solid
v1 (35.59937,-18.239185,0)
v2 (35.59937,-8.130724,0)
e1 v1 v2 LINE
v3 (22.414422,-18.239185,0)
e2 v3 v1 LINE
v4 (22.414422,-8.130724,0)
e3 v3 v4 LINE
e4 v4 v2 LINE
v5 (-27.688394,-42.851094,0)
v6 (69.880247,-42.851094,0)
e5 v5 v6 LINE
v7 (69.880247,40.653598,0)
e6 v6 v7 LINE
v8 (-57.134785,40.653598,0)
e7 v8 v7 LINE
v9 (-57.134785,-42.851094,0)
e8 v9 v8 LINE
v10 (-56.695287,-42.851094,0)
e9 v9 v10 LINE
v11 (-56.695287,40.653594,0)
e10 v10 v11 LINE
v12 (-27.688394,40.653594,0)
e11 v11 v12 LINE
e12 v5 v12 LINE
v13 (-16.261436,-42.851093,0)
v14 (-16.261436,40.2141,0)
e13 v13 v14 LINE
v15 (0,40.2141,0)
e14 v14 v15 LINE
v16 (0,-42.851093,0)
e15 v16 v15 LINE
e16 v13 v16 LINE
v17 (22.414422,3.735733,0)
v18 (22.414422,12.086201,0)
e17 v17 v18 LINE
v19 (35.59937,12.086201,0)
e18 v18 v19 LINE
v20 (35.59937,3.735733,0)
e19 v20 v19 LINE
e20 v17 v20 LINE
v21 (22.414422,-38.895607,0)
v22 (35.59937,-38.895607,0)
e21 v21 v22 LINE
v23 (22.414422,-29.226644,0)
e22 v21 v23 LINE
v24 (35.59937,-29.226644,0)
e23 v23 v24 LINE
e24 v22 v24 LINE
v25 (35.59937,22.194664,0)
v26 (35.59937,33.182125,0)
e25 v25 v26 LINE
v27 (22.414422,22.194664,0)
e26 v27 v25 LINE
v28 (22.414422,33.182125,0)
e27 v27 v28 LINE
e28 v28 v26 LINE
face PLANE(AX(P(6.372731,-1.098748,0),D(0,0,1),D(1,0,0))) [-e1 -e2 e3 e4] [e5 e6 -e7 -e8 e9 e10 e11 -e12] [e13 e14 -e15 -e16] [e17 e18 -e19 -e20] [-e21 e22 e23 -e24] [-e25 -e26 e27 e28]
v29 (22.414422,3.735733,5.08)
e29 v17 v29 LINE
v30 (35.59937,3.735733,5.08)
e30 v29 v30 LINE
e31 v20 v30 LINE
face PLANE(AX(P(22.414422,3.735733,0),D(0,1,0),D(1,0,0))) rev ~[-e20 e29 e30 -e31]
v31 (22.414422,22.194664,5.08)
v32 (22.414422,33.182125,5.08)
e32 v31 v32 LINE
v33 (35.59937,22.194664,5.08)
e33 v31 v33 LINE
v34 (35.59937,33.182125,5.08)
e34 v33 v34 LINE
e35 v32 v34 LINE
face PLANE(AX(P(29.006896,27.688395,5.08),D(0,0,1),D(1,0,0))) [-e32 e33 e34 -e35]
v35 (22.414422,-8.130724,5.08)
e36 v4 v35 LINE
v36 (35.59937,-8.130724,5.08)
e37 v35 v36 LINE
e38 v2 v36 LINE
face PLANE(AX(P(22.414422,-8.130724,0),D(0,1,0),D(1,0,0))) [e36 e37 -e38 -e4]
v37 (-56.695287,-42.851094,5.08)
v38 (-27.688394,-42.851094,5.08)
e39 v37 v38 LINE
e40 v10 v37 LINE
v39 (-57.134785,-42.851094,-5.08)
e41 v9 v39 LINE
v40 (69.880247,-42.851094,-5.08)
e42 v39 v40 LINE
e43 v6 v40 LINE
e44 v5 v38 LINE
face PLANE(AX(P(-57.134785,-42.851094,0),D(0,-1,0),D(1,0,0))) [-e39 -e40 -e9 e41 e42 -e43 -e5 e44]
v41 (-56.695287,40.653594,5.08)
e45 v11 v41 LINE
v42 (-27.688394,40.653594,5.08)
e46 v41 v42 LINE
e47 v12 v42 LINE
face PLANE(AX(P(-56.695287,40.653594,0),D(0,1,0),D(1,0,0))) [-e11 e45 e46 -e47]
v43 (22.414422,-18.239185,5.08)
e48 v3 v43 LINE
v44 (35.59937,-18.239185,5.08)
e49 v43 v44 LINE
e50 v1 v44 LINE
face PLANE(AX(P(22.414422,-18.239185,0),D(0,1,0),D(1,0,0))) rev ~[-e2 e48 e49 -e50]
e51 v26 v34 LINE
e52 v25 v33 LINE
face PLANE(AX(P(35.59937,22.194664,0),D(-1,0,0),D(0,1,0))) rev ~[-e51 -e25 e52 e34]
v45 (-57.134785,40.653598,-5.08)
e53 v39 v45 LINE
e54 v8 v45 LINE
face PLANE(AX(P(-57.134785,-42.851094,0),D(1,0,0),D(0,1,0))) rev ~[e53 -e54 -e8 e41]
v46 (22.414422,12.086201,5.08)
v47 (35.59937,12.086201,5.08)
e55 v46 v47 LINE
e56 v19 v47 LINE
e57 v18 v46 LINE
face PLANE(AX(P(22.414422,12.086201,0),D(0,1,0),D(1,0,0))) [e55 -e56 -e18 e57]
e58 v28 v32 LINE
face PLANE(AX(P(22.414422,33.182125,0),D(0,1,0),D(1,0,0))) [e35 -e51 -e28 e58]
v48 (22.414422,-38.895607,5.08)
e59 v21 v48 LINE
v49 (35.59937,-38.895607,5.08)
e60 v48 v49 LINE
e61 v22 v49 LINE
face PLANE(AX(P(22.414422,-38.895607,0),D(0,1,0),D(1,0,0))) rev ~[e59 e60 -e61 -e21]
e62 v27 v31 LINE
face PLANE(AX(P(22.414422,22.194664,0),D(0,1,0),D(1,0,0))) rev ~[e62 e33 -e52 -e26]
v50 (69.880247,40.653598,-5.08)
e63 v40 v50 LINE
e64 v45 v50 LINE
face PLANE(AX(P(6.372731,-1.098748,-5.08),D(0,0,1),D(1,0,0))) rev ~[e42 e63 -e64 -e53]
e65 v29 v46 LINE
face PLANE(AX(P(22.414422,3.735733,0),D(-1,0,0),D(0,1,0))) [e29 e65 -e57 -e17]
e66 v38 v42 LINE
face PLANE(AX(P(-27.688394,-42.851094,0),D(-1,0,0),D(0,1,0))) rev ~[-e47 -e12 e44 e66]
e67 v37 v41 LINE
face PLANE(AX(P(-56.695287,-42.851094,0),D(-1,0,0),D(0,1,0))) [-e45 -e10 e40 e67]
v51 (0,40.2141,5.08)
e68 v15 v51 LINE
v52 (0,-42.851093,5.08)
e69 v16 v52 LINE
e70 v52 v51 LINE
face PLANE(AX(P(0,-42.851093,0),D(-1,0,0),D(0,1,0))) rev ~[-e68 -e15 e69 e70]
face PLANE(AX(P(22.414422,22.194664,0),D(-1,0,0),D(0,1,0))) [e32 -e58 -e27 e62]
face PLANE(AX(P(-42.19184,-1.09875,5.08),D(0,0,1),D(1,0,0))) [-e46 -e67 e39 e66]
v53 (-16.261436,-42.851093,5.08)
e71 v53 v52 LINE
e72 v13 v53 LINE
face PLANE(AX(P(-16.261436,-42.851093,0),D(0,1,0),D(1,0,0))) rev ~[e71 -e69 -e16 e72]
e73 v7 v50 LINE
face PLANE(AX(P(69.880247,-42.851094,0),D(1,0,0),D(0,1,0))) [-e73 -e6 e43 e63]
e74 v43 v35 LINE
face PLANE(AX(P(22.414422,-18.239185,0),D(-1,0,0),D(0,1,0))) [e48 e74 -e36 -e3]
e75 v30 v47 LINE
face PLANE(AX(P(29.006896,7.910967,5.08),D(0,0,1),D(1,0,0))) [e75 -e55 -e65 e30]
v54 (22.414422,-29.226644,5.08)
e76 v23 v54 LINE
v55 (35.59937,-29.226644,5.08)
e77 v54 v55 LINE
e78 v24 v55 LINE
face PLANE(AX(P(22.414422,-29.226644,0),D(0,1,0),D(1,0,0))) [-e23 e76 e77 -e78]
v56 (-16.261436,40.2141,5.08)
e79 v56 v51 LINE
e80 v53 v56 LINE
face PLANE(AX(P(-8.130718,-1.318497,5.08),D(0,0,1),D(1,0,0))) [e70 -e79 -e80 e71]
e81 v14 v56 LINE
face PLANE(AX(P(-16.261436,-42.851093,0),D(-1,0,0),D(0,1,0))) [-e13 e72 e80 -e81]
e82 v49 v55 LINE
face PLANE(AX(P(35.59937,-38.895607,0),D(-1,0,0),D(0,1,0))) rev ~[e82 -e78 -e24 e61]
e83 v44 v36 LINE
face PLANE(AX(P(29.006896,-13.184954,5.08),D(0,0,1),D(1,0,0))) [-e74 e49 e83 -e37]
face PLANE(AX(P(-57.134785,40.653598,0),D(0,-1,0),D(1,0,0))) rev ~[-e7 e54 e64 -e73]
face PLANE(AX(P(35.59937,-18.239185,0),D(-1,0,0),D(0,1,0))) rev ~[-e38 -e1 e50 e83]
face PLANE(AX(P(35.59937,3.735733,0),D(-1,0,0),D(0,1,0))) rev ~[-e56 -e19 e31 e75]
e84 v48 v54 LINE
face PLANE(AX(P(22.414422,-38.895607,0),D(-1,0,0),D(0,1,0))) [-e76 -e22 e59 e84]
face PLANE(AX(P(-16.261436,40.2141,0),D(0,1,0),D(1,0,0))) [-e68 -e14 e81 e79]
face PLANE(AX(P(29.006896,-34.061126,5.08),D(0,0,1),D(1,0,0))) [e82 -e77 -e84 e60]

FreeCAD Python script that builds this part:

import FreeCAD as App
import Part
import Sketcher
from FreeCAD import Vector
Q = App.Units.Quantity


def add_polygon(sketch, points):
    """Adds a closed chain of lines whose ends are joined by coincident constraints."""
    first, n = sketch.GeometryCount, len(points)
    for a, b in zip(points, points[1:] + points[:1]):
        sketch.addGeometry(Part.LineSegment(App.Vector(*a, 0), App.Vector(*b, 0)), False)
    for i in range(n):
        sketch.addConstraint(Sketcher.Constraint("Coincident", first + i, 2, first + (i + 1) % n, 1))

doc = App.newDocument("Part")
body = doc.addObject("PartDesign::Body", "Body")

# Sketch on XY plane
sketch1 = doc.addObject("Sketcher::SketchObject", "Sketch")
body.addObject(sketch1)
sketch1.AttachmentSupport = (doc.XY_Plane, [""])
sketch1.MapMode = "FlatFace"
add_polygon(sketch1, [(-57.134785, 40.653598), (-57.134785, -42.851094), (69.880247, -42.851094), (69.880247, 40.653598)])  # lines 0-3
sketch1.addConstraint([
    Sketcher.Constraint("Vertical", 0),
    Sketcher.Constraint("Horizontal", 1),
    Sketcher.Constraint("Vertical", 2),
    Sketcher.Constraint("Horizontal", 3),
    Sketcher.Constraint("DistanceX", 1, 1, 1, 2, 127.015032),
    Sketcher.Constraint("DistanceY", -1, 1, 2, 2, 40.653598),
    Sketcher.Constraint("DistanceY", 0, 2, 0, 1, 83.504692),
    Sketcher.Constraint("DistanceX", 0, 2, -1, 1, 57.134785),
])
pad1 = doc.addObject("PartDesign::Pad", "Pad")
body.addObject(pad1)
pad1.Profile = sketch1
pad1.Length = Q("0.2 in")
pad1.Reversed = True

# Sketch on XY plane
sketch2 = doc.addObject("Sketcher::SketchObject", "Sketch001")
body.addObject(sketch2)
sketch2.AttachmentSupport = (doc.XY_Plane, [""])
sketch2.MapMode = "FlatFace"
add_polygon(sketch2, [(-56.695287, 40.653594), (-56.695287, -42.851094), (-27.688394, -42.851094), (-27.688394, 40.653594)])  # lines 0-3
add_polygon(sketch2, [(-16.261436, 40.2141), (-16.261436, -42.851093), (0, -42.851093), (0, 40.2141)])  # lines 4-7
add_polygon(sketch2, [(22.414422, 33.182125), (22.414422, 22.194664), (35.59937, 22.194664), (35.59937, 33.182125)])  # lines 8-11
add_polygon(sketch2, [(22.414422, 12.086201), (22.414422, 3.735733), (35.59937, 3.735733), (35.59937, 12.086201)])  # lines 12-15
add_polygon(sketch2, [(22.414422, -8.130724), (22.414422, -18.239185), (35.59937, -18.239185), (35.59937, -8.130724)])  # lines 16-19
add_polygon(sketch2, [(22.414422, -29.226644), (22.414422, -38.895607), (35.59937, -38.895607), (35.59937, -29.226644)])  # lines 20-23
sketch2.addConstraint([
    Sketcher.Constraint("Vertical", 0),
    Sketcher.Constraint("Horizontal", 1),
    Sketcher.Constraint("Vertical", 2),
    Sketcher.Constraint("Horizontal", 3),
    Sketcher.Constraint("Vertical", 4),
    Sketcher.Constraint("Horizontal", 5),
    Sketcher.Constraint("Vertical", 6),
    Sketcher.Constraint("Horizontal", 7),
    Sketcher.Constraint("Vertical", 8),
    Sketcher.Constraint("Horizontal", 9),
    Sketcher.Constraint("Vertical", 10),
    Sketcher.Constraint("Horizontal", 11),
    Sketcher.Constraint("Vertical", 12),
    Sketcher.Constraint("Horizontal", 13),
    Sketcher.Constraint("Vertical", 14),
    Sketcher.Constraint("Horizontal", 15),
    Sketcher.Constraint("Vertical", 16),
    Sketcher.Constraint("Horizontal", 17),
    Sketcher.Constraint("Vertical", 18),
    Sketcher.Constraint("Horizontal", 19),
    Sketcher.Constraint("Vertical", 20),
    Sketcher.Constraint("Horizontal", 21),
    Sketcher.Constraint("Vertical", 22),
    Sketcher.Constraint("Horizontal", 23),
    Sketcher.Constraint("PointOnObject", 5, 2, -2),
    Sketcher.Constraint("Horizontal", 1, 2, 4, 2),
    Sketcher.Constraint("Vertical", 11, 2, 12, 2),
    Sketcher.Constraint("Vertical", 10, 2, 13, 2),
    Sketcher.Constraint("Vertical", 15, 2, 16, 2),
    Sketcher.Constraint("Vertical", 14, 2, 17, 2),
    Sketcher.Constraint("Vertical", 19, 2, 20, 2),
    Sketcher.Constraint("Vertical", 18, 2, 21, 2),
    Sketcher.Constraint("DistanceX", 9, 1, 9, 2, 13.184948),
    Sketcher.Constraint("DistanceY", 0, 2, 0, 1, 83.504688),
    Sketcher.Constraint("DistanceY", 8, 2, 8, 1, 10.987461),
    Sketcher.Constraint("DistanceY", 12, 2, 12, 1, 8.350468),
    Sketcher.Constraint("DistanceY", 16, 2, 16, 1, 10.108461),
    Sketcher.Constraint("DistanceY", -1, 1, 6, 2, 40.2141),
    Sketcher.Constraint("DistanceY", -1, 1, 14, 2, 12.086201),
    Sketcher.Constraint("DistanceX", 1, 1, 1, 2, 29.006893),
    Sketcher.Constraint("DistanceX", 5, 1, 5, 2, 16.261436),
    Sketcher.Constraint("DistanceY", 4, 2, 4, 1, 83.065193),
    Sketcher.Constraint("DistanceY", 20, 2, 20, 1, 9.668963),
    Sketcher.Constraint("DistanceX", -1, 1, 8, 2, 22.414422),
    Sketcher.Constraint("DistanceX", 0, 2, 4, 2, 40.433851),
    Sketcher.Constraint("DistanceY", 8, 2, 2, 2, 18.458929),
    Sketcher.Constraint("DistanceY", 5, 2, 16, 2, 24.611909),
    Sketcher.Constraint("DistanceY", 22, 2, 17, 2, 10.98746),
])
pad2 = doc.addObject("PartDesign::Pad", "Pad001")
body.addObject(pad2)
pad2.Profile = sketch2
pad2.Length = Q("0.2 in")

doc.recompute()
